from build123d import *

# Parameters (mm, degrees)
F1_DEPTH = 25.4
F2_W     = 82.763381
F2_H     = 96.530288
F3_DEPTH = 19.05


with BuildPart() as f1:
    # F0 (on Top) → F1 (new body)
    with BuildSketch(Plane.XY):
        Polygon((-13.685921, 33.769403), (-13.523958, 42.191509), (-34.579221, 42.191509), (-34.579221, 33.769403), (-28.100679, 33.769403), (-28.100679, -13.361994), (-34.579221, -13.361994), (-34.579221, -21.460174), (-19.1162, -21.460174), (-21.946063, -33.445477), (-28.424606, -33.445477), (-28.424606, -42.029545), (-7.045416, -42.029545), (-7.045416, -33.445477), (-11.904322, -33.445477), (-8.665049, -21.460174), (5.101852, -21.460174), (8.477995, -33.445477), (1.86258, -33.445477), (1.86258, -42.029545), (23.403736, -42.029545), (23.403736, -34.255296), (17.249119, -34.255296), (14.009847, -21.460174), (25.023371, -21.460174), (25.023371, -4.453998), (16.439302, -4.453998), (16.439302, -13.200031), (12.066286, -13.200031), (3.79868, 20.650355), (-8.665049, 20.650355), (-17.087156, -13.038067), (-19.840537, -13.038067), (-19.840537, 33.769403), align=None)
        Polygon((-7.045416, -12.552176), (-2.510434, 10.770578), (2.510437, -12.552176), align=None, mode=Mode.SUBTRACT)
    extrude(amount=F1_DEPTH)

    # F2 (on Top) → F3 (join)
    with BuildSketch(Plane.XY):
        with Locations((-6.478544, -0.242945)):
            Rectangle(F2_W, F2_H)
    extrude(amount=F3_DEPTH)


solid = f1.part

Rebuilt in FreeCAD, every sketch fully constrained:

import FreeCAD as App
import Part
import Sketcher

doc = App.newDocument("Part")
params = doc.addObject("Spreadsheet::Sheet", "Params")
for row, (alias, value) in enumerate([
    ("pad1_length", "1 in"),
    ("pad2_length", "0.75 in"),
], start=1):
    params.set(f"A{row}", alias)
    params.set(f"B{row}", "=" + value)
    params.setAlias(f"B{row}", alias)

body = doc.addObject("PartDesign::Body", "Body")

sketch1 = doc.addObject("Sketcher::SketchObject", "Sketch")
body.addObject(sketch1)
sketch1.AttachmentSupport = (doc.XY_Plane, [""])
sketch1.MapMode = "FlatFace"
sketch1.addGeometry(Part.LineSegment(App.Vector(-13.685921, 33.769403, 0), App.Vector(-13.523958, 42.191509, 0)), False)
sketch1.addGeometry(Part.LineSegment(App.Vector(-13.523958, 42.191509, 0), App.Vector(-34.579221, 42.191509, 0)), False)
sketch1.addGeometry(Part.LineSegment(App.Vector(-34.579221, 42.191509, 0), App.Vector(-34.579221, 33.769403, 0)), False)
sketch1.addGeometry(Part.LineSegment(App.Vector(-34.579221, 33.769403, 0), App.Vector(-28.100679, 33.769403, 0)), False)
sketch1.addGeometry(Part.LineSegment(App.Vector(-28.100679, 33.769403, 0), App.Vector(-28.100679, -13.361994, 0)), False)
sketch1.addGeometry(Part.LineSegment(App.Vector(-28.100679, -13.361994, 0), App.Vector(-34.579221, -13.361994, 0)), False)
sketch1.addGeometry(Part.LineSegment(App.Vector(-34.579221, -13.361994, 0), App.Vector(-34.579221, -21.460174, 0)), False)
sketch1.addGeometry(Part.LineSegment(App.Vector(-34.579221, -21.460174, 0), App.Vector(-19.1162, -21.460174, 0)), False)
sketch1.addGeometry(Part.LineSegment(App.Vector(-19.1162, -21.460174, 0), App.Vector(-21.946063, -33.445477, 0)), False)
sketch1.addGeometry(Part.LineSegment(App.Vector(-21.946063, -33.445477, 0), App.Vector(-28.424606, -33.445477, 0)), False)
sketch1.addGeometry(Part.LineSegment(App.Vector(-28.424606, -33.445477, 0), App.Vector(-28.424606, -42.029545, 0)), False)
sketch1.addGeometry(Part.LineSegment(App.Vector(-28.424606, -42.029545, 0), App.Vector(-7.045416, -42.029545, 0)), False)
sketch1.addGeometry(Part.LineSegment(App.Vector(-7.045416, -42.029545, 0), App.Vector(-7.045416, -33.445477, 0)), False)
sketch1.addGeometry(Part.LineSegment(App.Vector(-7.045416, -33.445477, 0), App.Vector(-11.904322, -33.445477, 0)), False)
sketch1.addGeometry(Part.LineSegment(App.Vector(-11.904322, -33.445477, 0), App.Vector(-8.665049, -21.460174, 0)), False)
sketch1.addGeometry(Part.LineSegment(App.Vector(-8.665049, -21.460174, 0), App.Vector(5.101852, -21.460174, 0)), False)
sketch1.addGeometry(Part.LineSegment(App.Vector(5.101852, -21.460174, 0), App.Vector(8.477995, -33.445477, 0)), False)
sketch1.addGeometry(Part.LineSegment(App.Vector(8.477995, -33.445477, 0), App.Vector(1.86258, -33.445477, 0)), False)
sketch1.addGeometry(Part.LineSegment(App.Vector(1.86258, -33.445477, 0), App.Vector(1.86258, -42.029545, 0)), False)
sketch1.addGeometry(Part.LineSegment(App.Vector(1.86258, -42.029545, 0), App.Vector(23.403736, -42.029545, 0)), False)
sketch1.addGeometry(Part.LineSegment(App.Vector(23.403736, -42.029545, 0), App.Vector(23.403736, -34.255296, 0)), False)
sketch1.addGeometry(Part.LineSegment(App.Vector(23.403736, -34.255296, 0), App.Vector(17.249119, -34.255296, 0)), False)
sketch1.addGeometry(Part.LineSegment(App.Vector(17.249119, -34.255296, 0), App.Vector(14.009847, -21.460174, 0)), False)
sketch1.addGeometry(Part.LineSegment(App.Vector(14.009847, -21.460174, 0), App.Vector(25.023371, -21.460174, 0)), False)
sketch1.addGeometry(Part.LineSegment(App.Vector(25.023371, -21.460174, 0), App.Vector(25.023371, -4.453998, 0)), False)
sketch1.addGeometry(Part.LineSegment(App.Vector(25.023371, -4.453998, 0), App.Vector(16.439302, -4.453998, 0)), False)
sketch1.addGeometry(Part.LineSegment(App.Vector(16.439302, -4.453998, 0), App.Vector(16.439302, -13.200031, 0)), False)
sketch1.addGeometry(Part.LineSegment(App.Vector(16.439302, -13.200031, 0), App.Vector(12.066286, -13.200031, 0)), False)
sketch1.addGeometry(Part.LineSegment(App.Vector(12.066286, -13.200031, 0), App.Vector(3.79868, 20.650355, 0)), False)
sketch1.addGeometry(Part.LineSegment(App.Vector(3.79868, 20.650355, 0), App.Vector(-8.665049, 20.650355, 0)), False)
sketch1.addGeometry(Part.LineSegment(App.Vector(-8.665049, 20.650355, 0), App.Vector(-17.087156, -13.038067, 0)), False)
sketch1.addGeometry(Part.LineSegment(App.Vector(-17.087156, -13.038067, 0), App.Vector(-19.840537, -13.038067, 0)), False)
sketch1.addGeometry(Part.LineSegment(App.Vector(-19.840537, -13.038067, 0), App.Vector(-19.840537, 33.769403, 0)), False)
sketch1.addGeometry(Part.LineSegment(App.Vector(-19.840537, 33.769403, 0), App.Vector(-13.685921, 33.769403, 0)), False)
sketch1.addGeometry(Part.LineSegment(App.Vector(2.510437, -12.552176, 0), App.Vector(-7.045416, -12.552176, 0)), False)
sketch1.addGeometry(Part.LineSegment(App.Vector(-7.045416, -12.552176, 0), App.Vector(-2.510434, 10.770578, 0)), False)
sketch1.addGeometry(Part.LineSegment(App.Vector(-2.510434, 10.770578, 0), App.Vector(2.510437, -12.552176, 0)), False)
sketch1.addConstraint(Sketcher.Constraint("Coincident", 0, 2, 1, 1))
sketch1.addConstraint(Sketcher.Constraint("Coincident", 1, 2, 2, 1))
sketch1.addConstraint(Sketcher.Constraint("Coincident", 2, 2, 3, 1))
sketch1.addConstraint(Sketcher.Constraint("Coincident", 3, 2, 4, 1))
sketch1.addConstraint(Sketcher.Constraint("Coincident", 4, 2, 5, 1))
sketch1.addConstraint(Sketcher.Constraint("Coincident", 5, 2, 6, 1))
sketch1.addConstraint(Sketcher.Constraint("Coincident", 6, 2, 7, 1))
sketch1.addConstraint(Sketcher.Constraint("Coincident", 7, 2, 8, 1))
sketch1.addConstraint(Sketcher.Constraint("Coincident", 8, 2, 9, 1))
sketch1.addConstraint(Sketcher.Constraint("Coincident", 9, 2, 10, 1))
sketch1.addConstraint(Sketcher.Constraint("Coincident", 10, 2, 11, 1))
sketch1.addConstraint(Sketcher.Constraint("Coincident", 11, 2, 12, 1))
sketch1.addConstraint(Sketcher.Constraint("Coincident", 12, 2, 13, 1))
sketch1.addConstraint(Sketcher.Constraint("Coincident", 13, 2, 14, 1))
sketch1.addConstraint(Sketcher.Constraint("Coincident", 14, 2, 15, 1))
sketch1.addConstraint(Sketcher.Constraint("Coincident", 15, 2, 16, 1))
sketch1.addConstraint(Sketcher.Constraint("Coincident", 16, 2, 17, 1))
sketch1.addConstraint(Sketcher.Constraint("Coincident", 17, 2, 18, 1))
sketch1.addConstraint(Sketcher.Constraint("Coincident", 18, 2, 19, 1))
sketch1.addConstraint(Sketcher.Constraint("Coincident", 19, 2, 20, 1))
sketch1.addConstraint(Sketcher.Constraint("Coincident", 20, 2, 21, 1))
sketch1.addConstraint(Sketcher.Constraint("Coincident", 21, 2, 22, 1))
sketch1.addConstraint(Sketcher.Constraint("Coincident", 22, 2, 23, 1))
sketch1.addConstraint(Sketcher.Constraint("Coincident", 23, 2, 24, 1))
sketch1.addConstraint(Sketcher.Constraint("Coincident", 24, 2, 25, 1))
sketch1.addConstraint(Sketcher.Constraint("Coincident", 25, 2, 26, 1))
sketch1.addConstraint(Sketcher.Constraint("Coincident", 26, 2, 27, 1))
sketch1.addConstraint(Sketcher.Constraint("Coincident", 27, 2, 28, 1))
sketch1.addConstraint(Sketcher.Constraint("Coincident", 28, 2, 29, 1))
sketch1.addConstraint(Sketcher.Constraint("Coincident", 29, 2, 30, 1))
sketch1.addConstraint(Sketcher.Constraint("Coincident", 30, 2, 31, 1))
sketch1.addConstraint(Sketcher.Constraint("Coincident", 31, 2, 32, 1))
sketch1.addConstraint(Sketcher.Constraint("Coincident", 32, 2, 33, 1))
sketch1.addConstraint(Sketcher.Constraint("Coincident", 33, 2, 0, 1))
sketch1.addConstraint(Sketcher.Constraint("Coincident", 34, 2, 35, 1))
sketch1.addConstraint(Sketcher.Constraint("Coincident", 35, 2, 36, 1))
sketch1.addConstraint(Sketcher.Constraint("Coincident", 36, 2, 34, 1))
sketch1.addConstraint(Sketcher.Constraint("Horizontal", 1))
sketch1.addConstraint(Sketcher.Constraint("Vertical", 2))
sketch1.addConstraint(Sketcher.Constraint("Horizontal", 3))
sketch1.addConstraint(Sketcher.Constraint("Vertical", 4))
sketch1.addConstraint(Sketcher.Constraint("Horizontal", 5))
sketch1.addConstraint(Sketcher.Constraint("Vertical", 6))
sketch1.addConstraint(Sketcher.Constraint("Horizontal", 7))
sketch1.addConstraint(Sketcher.Constraint("Horizontal", 9))
sketch1.addConstraint(Sketcher.Constraint("Vertical", 10))
sketch1.addConstraint(Sketcher.Constraint("Horizontal", 11))
sketch1.addConstraint(Sketcher.Constraint("Vertical", 12))
sketch1.addConstraint(Sketcher.Constraint("Horizontal", 13))
sketch1.addConstraint(Sketcher.Constraint("Horizontal", 15))
sketch1.addConstraint(Sketcher.Constraint("Horizontal", 17))
sketch1.addConstraint(Sketcher.Constraint("Vertical", 18))
sketch1.addConstraint(Sketcher.Constraint("Horizontal", 19))
sketch1.addConstraint(Sketcher.Constraint("Vertical", 20))
sketch1.addConstraint(Sketcher.Constraint("Horizontal", 21))
sketch1.addConstraint(Sketcher.Constraint("Horizontal", 23))
sketch1.addConstraint(Sketcher.Constraint("Vertical", 24))
sketch1.addConstraint(Sketcher.Constraint("Horizontal", 25))
sketch1.addConstraint(Sketcher.Constraint("Vertical", 26))
sketch1.addConstraint(Sketcher.Constraint("Horizontal", 27))
sketch1.addConstraint(Sketcher.Constraint("Horizontal", 29))
sketch1.addConstraint(Sketcher.Constraint("Horizontal", 31))
sketch1.addConstraint(Sketcher.Constraint("Vertical", 32))
sketch1.addConstraint(Sketcher.Constraint("Horizontal", 33))
sketch1.addConstraint(Sketcher.Constraint("Horizontal", 34))
sketch1.addConstraint(Sketcher.Constraint("Horizontal", 9, 2, 12, 2))
sketch1.addConstraint(Sketcher.Constraint("Horizontal", 7, 2, 14, 2))
sketch1.addConstraint(Sketcher.Constraint("Horizontal", 13, 2, 16, 2))
sketch1.addConstraint(Sketcher.Constraint("Horizontal", 11, 2, 18, 2))
sketch1.addConstraint(Sketcher.Constraint("Horizontal", 15, 2, 22, 2))
sketch1.addConstraint(Sketcher.Constraint("Horizontal", 3, 2, 32, 2))
sketch1.addConstraint(Sketcher.Constraint("Vertical", 2, 2, 5, 2))
sketch1.addConstraint(Sketcher.Constraint("Vertical", 14, 2, 29, 2))
sketch1.addConstraint(Sketcher.Constraint("Vertical", 12, 2, 34, 2))
sketch1.addConstraint(Sketcher.Constraint("Equal", 5, 9))
sketch1.addConstraint(Sketcher.Constraint("Equal", 21, 33))
sketch1.addConstraint(Sketcher.Constraint("Equal", 25, 10))
sketch1.addConstraint(Sketcher.Constraint("DistanceX", 15, 1, 15, 2, 13.766901))
sketch1.addConstraint(Sketcher.Constraint("Distance", 28, 34.845401))
sketch1.addConstraint(Sketcher.Constraint("DistanceX", 3, 1, 3, 2, 6.478542))
sketch1.addConstraint(Sketcher.Constraint("DistanceX", 7, 1, 7, 2, 15.463021))
sketch1.addConstraint(Sketcher.Constraint("DistanceX", 11, 1, 11, 2, 21.37919))
sketch1.addConstraint(Sketcher.Constraint("DistanceX", 25, 2, 25, 1, 8.584069))
sketch1.addConstraint(Sketcher.Constraint("DistanceX", 29, 2, 29, 1, 12.463729))
sketch1.addConstraint(Sketcher.Constraint("DistanceX", 31, 2, 31, 1, 2.753381))
sketch1.addConstraint(Sketcher.Constraint("DistanceY", 6, 2, 6, 1, 8.09818))
sketch1.addConstraint(Sketcher.Constraint("DistanceY", 20, 1, 20, 2, 7.774249))
sketch1.addConstraint(Sketcher.Constraint("DistanceY", 32, 1, 32, 2, 46.80747))
sketch1.addConstraint(Sketcher.Constraint("DistanceX", 7, 2, -1, 1, 19.1162))
sketch1.addConstraint(Sketcher.Constraint("DistanceY", 24, 2, -1, 1, 4.453998))
sketch1.addConstraint(Sketcher.Constraint("DistanceY", 20, 2, 24, 2, 29.801298))
sketch1.addConstraint(Sketcher.Constraint("DistanceX", 2, 2, 33, 2, 20.8933))
sketch1.addConstraint(Sketcher.Constraint("Distance", 14, 12.415328))
sketch1.addConstraint(Sketcher.Constraint("Distance", 16, 12.45174))
sketch1.addConstraint(Sketcher.Constraint("Distance", 22, 13.198789))
sketch1.addConstraint(Sketcher.Constraint("Distance", 30, 34.725231))
sketch1.addConstraint(Sketcher.Constraint("DistanceX", 1, 2, 1, 1, 21.055263))
sketch1.addConstraint(Sketcher.Constraint("DistanceX", 13, 2, 13, 1, 4.858906))
sketch1.addConstraint(Sketcher.Constraint("DistanceX", 17, 2, 17, 1, 6.615415))
sketch1.addConstraint(Sketcher.Constraint("DistanceX", 19, 1, 19, 2, 21.541156))
sketch1.addConstraint(Sketcher.Constraint("DistanceX", 21, 2, 21, 1, 6.154617))
sketch1.addConstraint(Sketcher.Constraint("DistanceX", 23, 1, 23, 2, 11.013524))
sketch1.addConstraint(Sketcher.Constraint("DistanceX", 27, 2, 27, 1, 4.373016))
sketch1.addConstraint(Sketcher.Constraint("DistanceX", 34, 2, 34, 1, 9.555853))
sketch1.addConstraint(Sketcher.Constraint("DistanceY", 2, 2, 2, 1, 8.422106))
sketch1.addConstraint(Sketcher.Constraint("DistanceY", 4, 2, 4, 1, 47.131397))
sketch1.addConstraint(Sketcher.Constraint("DistanceY", 24, 1, 24, 2, 17.006176))
sketch1.addConstraint(Sketcher.Constraint("DistanceY", 26, 2, 26, 1, 8.746033))
sketch1.addConstraint(Sketcher.Constraint("DistanceY", 30, 2, 34, 2, 0.485891))
sketch1.addConstraint(Sketcher.Constraint("Distance", 35, 23.759565))
sketch1.addConstraint(Sketcher.Constraint("Distance", 36, 23.857074))
pad1 = doc.addObject("PartDesign::Pad", "Pad")
body.addObject(pad1)
pad1.Profile = sketch1
pad1.setExpression("Length", "Params.pad1_length")

sketch2 = doc.addObject("Sketcher::SketchObject", "Sketch001")
body.addObject(sketch2)
sketch2.AttachmentSupport = (doc.XY_Plane, [""])
sketch2.MapMode = "FlatFace"
sketch2.addGeometry(Part.LineSegment(App.Vector(-47.860234, 48.022199, 0), App.Vector(-47.860234, -48.508089, 0)), False)
sketch2.addGeometry(Part.LineSegment(App.Vector(-47.860234, -48.508089, 0), App.Vector(34.903146, -48.508089, 0)), False)
sketch2.addGeometry(Part.LineSegment(App.Vector(34.903146, -48.508089, 0), App.Vector(34.903146, 48.022199, 0)), False)
sketch2.addGeometry(Part.LineSegment(App.Vector(34.903146, 48.022199, 0), App.Vector(-47.860234, 48.022199, 0)), False)
sketch2.addConstraint(Sketcher.Constraint("Coincident", 0, 2, 1, 1))
sketch2.addConstraint(Sketcher.Constraint("Coincident", 1, 2, 2, 1))
sketch2.addConstraint(Sketcher.Constraint("Coincident", 2, 2, 3, 1))
sketch2.addConstraint(Sketcher.Constraint("Coincident", 3, 2, 0, 1))
sketch2.addConstraint(Sketcher.Constraint("Vertical", 0))
sketch2.addConstraint(Sketcher.Constraint("Horizontal", 1))
sketch2.addConstraint(Sketcher.Constraint("Vertical", 2))
sketch2.addConstraint(Sketcher.Constraint("Horizontal", 3))
sketch2.addConstraint(Sketcher.Constraint("DistanceX", 1, 1, 1, 2, 82.763381))
sketch2.addConstraint(Sketcher.Constraint("DistanceY", 0, 2, 0, 1, 96.530288))
sketch2.addConstraint(Sketcher.Constraint("DistanceY", -1, 1, 2, 2, 48.022199))
sketch2.addConstraint(Sketcher.Constraint("DistanceX", 0, 2, -1, 1, 47.860234))
pad2 = doc.addObject("PartDesign::Pad", "Pad001")
body.addObject(pad2)
pad2.Profile = sketch2
pad2.setExpression("Length", "Params.pad2_length")

doc.recompute()
